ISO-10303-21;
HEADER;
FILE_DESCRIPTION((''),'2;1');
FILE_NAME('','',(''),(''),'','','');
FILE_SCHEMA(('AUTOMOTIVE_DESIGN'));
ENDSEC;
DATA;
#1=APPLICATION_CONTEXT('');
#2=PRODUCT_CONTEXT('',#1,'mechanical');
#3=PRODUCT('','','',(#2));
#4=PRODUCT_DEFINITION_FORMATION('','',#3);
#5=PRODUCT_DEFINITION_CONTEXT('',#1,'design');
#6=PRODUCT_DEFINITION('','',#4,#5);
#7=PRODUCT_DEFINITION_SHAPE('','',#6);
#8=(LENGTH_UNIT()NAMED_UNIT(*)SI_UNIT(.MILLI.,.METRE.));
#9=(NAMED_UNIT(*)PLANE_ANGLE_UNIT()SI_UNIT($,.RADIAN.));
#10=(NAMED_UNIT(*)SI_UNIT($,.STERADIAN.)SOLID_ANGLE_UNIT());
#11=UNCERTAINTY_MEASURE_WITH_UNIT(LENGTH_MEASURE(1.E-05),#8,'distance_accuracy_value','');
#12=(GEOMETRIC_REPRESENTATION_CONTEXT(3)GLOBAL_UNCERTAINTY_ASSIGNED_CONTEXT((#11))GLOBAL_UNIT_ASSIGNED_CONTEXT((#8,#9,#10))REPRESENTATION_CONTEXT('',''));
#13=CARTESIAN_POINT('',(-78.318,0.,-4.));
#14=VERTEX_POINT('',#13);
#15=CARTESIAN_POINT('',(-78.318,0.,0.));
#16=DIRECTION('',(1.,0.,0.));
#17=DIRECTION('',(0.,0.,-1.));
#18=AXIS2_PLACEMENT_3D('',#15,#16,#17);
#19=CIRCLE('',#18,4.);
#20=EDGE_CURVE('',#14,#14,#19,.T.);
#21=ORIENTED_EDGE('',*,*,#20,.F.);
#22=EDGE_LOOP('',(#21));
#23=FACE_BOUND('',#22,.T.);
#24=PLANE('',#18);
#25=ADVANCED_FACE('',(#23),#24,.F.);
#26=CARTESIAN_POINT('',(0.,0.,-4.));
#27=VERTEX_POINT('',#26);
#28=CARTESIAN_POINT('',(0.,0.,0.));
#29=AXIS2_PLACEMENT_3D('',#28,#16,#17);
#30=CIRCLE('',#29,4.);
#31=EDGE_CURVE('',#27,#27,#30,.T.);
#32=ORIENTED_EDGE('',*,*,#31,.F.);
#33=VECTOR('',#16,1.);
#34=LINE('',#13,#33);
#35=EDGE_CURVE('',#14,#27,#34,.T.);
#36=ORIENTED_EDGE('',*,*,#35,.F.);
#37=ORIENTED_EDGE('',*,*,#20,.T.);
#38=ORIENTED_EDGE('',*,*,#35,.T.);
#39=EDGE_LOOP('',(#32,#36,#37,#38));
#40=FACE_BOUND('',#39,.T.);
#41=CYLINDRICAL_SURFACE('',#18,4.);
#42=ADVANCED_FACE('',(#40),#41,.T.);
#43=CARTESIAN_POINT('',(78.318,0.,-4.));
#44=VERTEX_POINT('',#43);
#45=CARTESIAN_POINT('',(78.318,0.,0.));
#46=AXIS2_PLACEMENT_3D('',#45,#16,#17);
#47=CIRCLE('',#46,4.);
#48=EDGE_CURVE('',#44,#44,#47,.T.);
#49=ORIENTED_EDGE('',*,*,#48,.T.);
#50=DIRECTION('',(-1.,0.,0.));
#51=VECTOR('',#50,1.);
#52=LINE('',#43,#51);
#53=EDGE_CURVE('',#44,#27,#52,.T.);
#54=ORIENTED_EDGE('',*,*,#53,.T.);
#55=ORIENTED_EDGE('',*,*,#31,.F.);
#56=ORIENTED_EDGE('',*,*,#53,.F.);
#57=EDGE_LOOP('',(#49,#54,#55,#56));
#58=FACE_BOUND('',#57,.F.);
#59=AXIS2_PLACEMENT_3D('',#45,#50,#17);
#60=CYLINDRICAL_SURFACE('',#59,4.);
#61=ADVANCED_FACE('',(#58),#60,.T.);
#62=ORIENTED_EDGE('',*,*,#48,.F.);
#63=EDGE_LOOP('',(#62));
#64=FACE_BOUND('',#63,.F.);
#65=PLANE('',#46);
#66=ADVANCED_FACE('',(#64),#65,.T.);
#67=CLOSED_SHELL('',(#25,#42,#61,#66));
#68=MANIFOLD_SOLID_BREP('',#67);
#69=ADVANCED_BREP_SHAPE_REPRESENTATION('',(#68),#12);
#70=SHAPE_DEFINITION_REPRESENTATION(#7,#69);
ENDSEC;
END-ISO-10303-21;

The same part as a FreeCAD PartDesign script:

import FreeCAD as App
import Part
import Sketcher
Q = App.Units.Quantity


def add_polygon(sketch, points):
    """Adds a closed chain of lines whose ends are joined by coincident constraints."""
    first, n = sketch.GeometryCount, len(points)
    for a, b in zip(points, points[1:] + points[:1]):
        sketch.addGeometry(Part.LineSegment(App.Vector(*a, 0), App.Vector(*b, 0)), False)
    for i in range(n):
        sketch.addConstraint(Sketcher.Constraint("Coincident", first + i, 2, first + (i + 1) % n, 1))

doc = App.newDocument("Part")
params = doc.addObject("Spreadsheet::Sheet", "Params")
for row, (alias, value) in enumerate([
    ("sketch1_height", "4 mm"),
    ("revolution_angle", "360 deg"),
], start=1):
    params.set(f"A{row}", alias)
    params.set(f"B{row}", "=" + value)
    params.setAlias(f"B{row}", alias)

body = doc.addObject("PartDesign::Body", "Body")

sketch1 = body.newObject("Sketcher::SketchObject", "Sketch")
sketch1.AttachmentSupport = (doc.getObject("XZ_Plane"), [""])
sketch1.MapMode = "FlatFace"
add_polygon(sketch1, [(-78.3, 0), (78.3, 0), (78.3, -4), (-78.3, -4)])
sketch1.addConstraint([
    Sketcher.Constraint("Horizontal", 0),
    Sketcher.Constraint("Vertical", 1),
    Sketcher.Constraint("Horizontal", 2),
    Sketcher.Constraint("Vertical", 3),
    Sketcher.Constraint("Symmetric", 0, 2, 3, 2, -1, 1),
    Sketcher.Constraint("DistanceY", 1, 2, 1, 1, Q("4 mm")),
    Sketcher.Constraint("DistanceX", -1, 1, 0, 2, Q("78.318 mm")),
])
sketch1.setExpression("Constraints[9]", "Params.sketch1_height")
revolution = body.newObject("PartDesign::Revolution", "Revolution")
revolution.Profile = sketch1
revolution.ReferenceAxis = (sketch1, ["H_Axis"])
revolution.setExpression("Angle", "Params.revolution_angle")

doc.recompute()
